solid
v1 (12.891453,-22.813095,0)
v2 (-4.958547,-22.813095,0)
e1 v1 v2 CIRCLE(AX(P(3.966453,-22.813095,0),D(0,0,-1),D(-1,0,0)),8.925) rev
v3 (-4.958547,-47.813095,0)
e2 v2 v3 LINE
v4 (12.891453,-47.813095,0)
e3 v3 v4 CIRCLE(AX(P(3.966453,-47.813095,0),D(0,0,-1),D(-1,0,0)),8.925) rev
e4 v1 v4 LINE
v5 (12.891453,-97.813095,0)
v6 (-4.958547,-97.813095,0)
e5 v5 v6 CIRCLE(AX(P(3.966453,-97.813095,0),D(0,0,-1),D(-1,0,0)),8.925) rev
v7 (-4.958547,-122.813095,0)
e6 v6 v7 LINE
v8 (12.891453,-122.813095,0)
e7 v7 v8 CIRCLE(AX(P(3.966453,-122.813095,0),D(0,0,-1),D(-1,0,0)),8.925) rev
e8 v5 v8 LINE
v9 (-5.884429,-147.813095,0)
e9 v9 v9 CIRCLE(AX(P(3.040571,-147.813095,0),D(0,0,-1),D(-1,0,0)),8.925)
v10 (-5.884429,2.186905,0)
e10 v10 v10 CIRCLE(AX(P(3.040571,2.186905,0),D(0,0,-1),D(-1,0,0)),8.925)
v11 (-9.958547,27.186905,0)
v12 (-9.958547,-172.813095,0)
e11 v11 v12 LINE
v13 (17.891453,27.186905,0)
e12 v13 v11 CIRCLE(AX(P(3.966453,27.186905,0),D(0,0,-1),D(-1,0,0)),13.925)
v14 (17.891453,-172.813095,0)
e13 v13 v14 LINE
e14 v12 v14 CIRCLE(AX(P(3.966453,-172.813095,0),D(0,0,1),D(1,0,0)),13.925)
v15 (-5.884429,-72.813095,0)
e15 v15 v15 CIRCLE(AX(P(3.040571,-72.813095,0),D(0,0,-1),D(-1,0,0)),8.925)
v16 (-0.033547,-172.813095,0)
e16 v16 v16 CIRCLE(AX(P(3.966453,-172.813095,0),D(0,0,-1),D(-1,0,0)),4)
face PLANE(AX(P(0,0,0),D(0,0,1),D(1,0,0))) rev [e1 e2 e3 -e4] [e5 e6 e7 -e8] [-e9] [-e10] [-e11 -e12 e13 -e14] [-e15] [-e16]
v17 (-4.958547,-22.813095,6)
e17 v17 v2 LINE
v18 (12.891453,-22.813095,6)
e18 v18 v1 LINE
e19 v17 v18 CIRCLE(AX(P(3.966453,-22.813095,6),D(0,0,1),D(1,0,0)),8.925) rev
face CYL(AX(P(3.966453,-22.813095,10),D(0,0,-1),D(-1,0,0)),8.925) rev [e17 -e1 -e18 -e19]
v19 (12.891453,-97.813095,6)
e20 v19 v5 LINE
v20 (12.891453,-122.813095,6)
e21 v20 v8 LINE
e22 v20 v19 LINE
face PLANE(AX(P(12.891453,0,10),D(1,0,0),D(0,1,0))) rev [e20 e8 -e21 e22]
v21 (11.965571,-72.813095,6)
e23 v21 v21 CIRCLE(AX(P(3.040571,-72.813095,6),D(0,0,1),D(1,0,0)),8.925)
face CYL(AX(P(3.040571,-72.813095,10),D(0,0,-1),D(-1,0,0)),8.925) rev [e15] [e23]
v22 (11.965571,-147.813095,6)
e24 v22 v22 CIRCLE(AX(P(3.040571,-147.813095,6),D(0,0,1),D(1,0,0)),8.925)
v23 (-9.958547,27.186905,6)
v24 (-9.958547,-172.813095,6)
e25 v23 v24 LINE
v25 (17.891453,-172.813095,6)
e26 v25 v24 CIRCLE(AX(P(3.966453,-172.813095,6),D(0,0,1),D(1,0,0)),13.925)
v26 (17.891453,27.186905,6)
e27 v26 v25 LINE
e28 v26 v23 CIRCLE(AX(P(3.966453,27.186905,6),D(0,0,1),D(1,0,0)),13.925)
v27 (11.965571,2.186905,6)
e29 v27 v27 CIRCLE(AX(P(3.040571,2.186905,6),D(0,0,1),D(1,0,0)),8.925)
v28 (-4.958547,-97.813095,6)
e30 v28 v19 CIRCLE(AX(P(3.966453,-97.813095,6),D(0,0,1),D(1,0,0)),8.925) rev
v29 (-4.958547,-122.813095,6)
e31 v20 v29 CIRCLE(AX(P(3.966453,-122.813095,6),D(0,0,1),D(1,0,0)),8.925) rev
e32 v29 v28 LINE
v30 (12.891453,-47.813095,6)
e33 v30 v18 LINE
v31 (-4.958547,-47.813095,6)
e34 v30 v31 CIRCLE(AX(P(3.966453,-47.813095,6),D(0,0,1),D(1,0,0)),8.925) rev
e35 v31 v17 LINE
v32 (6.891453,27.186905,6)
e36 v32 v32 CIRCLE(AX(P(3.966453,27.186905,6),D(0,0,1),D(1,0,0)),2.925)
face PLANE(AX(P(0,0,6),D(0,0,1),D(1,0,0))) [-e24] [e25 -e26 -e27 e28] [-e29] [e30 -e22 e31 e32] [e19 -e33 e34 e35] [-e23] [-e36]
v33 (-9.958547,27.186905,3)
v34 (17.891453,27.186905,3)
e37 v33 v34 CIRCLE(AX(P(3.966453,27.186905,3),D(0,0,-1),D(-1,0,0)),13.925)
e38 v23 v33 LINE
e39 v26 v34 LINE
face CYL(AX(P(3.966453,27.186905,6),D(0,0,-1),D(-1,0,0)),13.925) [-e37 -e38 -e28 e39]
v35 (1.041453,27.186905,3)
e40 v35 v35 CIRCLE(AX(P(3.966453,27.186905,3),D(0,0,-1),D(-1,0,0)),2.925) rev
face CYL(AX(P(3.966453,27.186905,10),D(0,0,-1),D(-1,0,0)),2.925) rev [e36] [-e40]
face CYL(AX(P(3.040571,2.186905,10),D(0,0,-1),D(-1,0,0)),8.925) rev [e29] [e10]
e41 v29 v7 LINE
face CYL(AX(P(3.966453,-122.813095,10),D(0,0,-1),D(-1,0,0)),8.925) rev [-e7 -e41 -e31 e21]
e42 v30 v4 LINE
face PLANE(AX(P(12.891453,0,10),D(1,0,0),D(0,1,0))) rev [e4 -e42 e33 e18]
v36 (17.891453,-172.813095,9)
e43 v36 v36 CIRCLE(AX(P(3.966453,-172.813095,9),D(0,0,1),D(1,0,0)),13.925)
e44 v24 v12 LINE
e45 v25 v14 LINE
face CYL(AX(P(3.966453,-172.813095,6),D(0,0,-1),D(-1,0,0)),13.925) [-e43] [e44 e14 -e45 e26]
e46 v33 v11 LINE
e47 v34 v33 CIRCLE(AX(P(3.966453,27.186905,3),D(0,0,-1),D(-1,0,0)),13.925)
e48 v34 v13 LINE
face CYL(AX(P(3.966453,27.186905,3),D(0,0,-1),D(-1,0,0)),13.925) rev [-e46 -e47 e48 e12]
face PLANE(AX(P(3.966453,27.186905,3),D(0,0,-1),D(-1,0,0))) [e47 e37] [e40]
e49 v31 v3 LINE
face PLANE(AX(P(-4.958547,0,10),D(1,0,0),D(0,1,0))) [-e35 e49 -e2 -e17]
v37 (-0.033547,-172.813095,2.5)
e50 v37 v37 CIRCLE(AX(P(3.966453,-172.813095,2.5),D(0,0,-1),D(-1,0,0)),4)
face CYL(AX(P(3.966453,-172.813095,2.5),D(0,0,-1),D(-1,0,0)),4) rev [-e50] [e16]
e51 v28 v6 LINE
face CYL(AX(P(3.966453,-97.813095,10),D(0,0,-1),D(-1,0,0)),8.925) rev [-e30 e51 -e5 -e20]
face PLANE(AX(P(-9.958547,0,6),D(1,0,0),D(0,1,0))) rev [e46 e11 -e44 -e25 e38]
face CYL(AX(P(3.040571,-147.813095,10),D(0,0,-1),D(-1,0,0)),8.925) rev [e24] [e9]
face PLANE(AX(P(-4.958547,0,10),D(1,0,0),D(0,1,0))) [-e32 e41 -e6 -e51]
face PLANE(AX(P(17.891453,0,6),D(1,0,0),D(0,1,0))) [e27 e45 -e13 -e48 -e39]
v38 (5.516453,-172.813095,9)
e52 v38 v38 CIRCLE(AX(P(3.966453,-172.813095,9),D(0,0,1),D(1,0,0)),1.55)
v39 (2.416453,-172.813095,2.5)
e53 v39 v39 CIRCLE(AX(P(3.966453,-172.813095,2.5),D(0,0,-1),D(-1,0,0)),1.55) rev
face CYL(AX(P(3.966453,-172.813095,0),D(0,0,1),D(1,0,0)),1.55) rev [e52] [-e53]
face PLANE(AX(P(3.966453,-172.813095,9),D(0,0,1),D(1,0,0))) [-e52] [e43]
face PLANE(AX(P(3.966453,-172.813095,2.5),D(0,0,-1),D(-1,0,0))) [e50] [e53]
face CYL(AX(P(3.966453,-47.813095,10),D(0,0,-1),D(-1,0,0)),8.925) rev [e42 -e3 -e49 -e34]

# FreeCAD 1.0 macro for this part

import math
import FreeCAD as App
import Part
import Sketcher
from FreeCAD import Vector

doc = App.newDocument("Part")
body = doc.addObject("PartDesign::Body", "Body")

# Sketch on XY plane
sketch1 = body.newObject("Sketcher::SketchObject", "Sketch")
sketch1.AttachmentSupport = (doc.getObject("XY_Plane"), [""])
sketch1.MapMode = "FlatFace"
sketch1.addGeometry(Part.LineSegment(Vector(-10, 27, 0), Vector(-10, -173, 0)), False)
sketch1.addGeometry(Part.ArcOfCircle(Part.Circle(Vector(4, -173, 0), Vector(0, 0, 1), 14), math.radians(180), math.radians(360)), False)
sketch1.addGeometry(Part.LineSegment(Vector(18, -173, 0), Vector(18, 27, 0)), False)
sketch1.addGeometry(Part.ArcOfCircle(Part.Circle(Vector(4, 27, 0), Vector(0, 0, 1), 14), math.radians(0), math.radians(180)), False)
sketch1.addConstraint(Sketcher.Constraint("Tangent", 0, 2, 1, 1))
sketch1.addConstraint(Sketcher.Constraint("Tangent", 1, 2, 2, 1))
sketch1.addConstraint(Sketcher.Constraint("Tangent", 2, 2, 3, 1))
sketch1.addConstraint(Sketcher.Constraint("Tangent", 3, 2, 0, 1))
sketch1.addConstraint(Sketcher.Constraint("Vertical", 0))
sketch1.addConstraint(Sketcher.Constraint("Vertical", 2))
sketch1.addConstraint(Sketcher.Constraint("DistanceY", 0, 2, 0, 1, 200.0))
sketch1.addConstraint(Sketcher.Constraint("Radius", 1, 13.925))
sketch1.addConstraint(Sketcher.Constraint("DistanceX", -1, 1, 1, 3, 3.966453))
sketch1.addConstraint(Sketcher.Constraint("DistanceY", 1, 3, -1, 1, 172.813095))
pad1 = body.newObject("PartDesign::Pad", "Pad")
pad1.Profile = sketch1
pad1.Length = 6

# Sketch on XY plane
sketch2 = body.newObject("Sketcher::SketchObject", "Sketch001")
sketch2.AttachmentSupport = (doc.getObject("XY_Plane"), [""])
sketch2.MapMode = "FlatFace"
sketch2.AttachmentOffset = App.Placement(Vector(0, 0, 3), App.Rotation())
sketch2.addGeometry(Part.Circle(Vector(4, -173, 0), Vector(0, 0, 1), 14), False)
sketch2.addConstraint(Sketcher.Constraint("Diameter", 0, 27.85))
sketch2.addConstraint(Sketcher.Constraint("DistanceX", -1, 1, 0, 3, 3.966453))
sketch2.addConstraint(Sketcher.Constraint("DistanceY", 0, 3, -1, 1, 172.813095))
pocket1 = body.newObject("PartDesign::Pocket", "Pocket")
pocket1.Profile = sketch2
pocket1.Length = 3
pocket1.Reversed = True

# Sketch on XY plane
sketch3 = body.newObject("Sketcher::SketchObject", "Sketch002")
sketch3.AttachmentSupport = (doc.getObject("XY_Plane"), [""])
sketch3.MapMode = "FlatFace"
sketch3.AttachmentOffset = App.Placement(Vector(0, 0, 3), App.Rotation())
sketch3.addGeometry(Part.Circle(Vector(4, -172.8, 0), Vector(0, 0, 1), 1.6), False)
sketch3.addConstraint(Sketcher.Constraint("Diameter", 0, 3.1))
sketch3.addConstraint(Sketcher.Constraint("DistanceX", -1, 1, 0, 3, 3.966453))
sketch3.addConstraint(Sketcher.Constraint("DistanceY", 0, 3, -1, 1, 172.813095))
pocket2 = body.newObject("PartDesign::Pocket", "Pocket001")
pocket2.Profile = sketch3
pocket2.Length = 3

# Sketch on XY plane
sketch4 = body.newObject("Sketcher::SketchObject", "Sketch003")
sketch4.AttachmentSupport = (doc.getObject("XY_Plane"), [""])
sketch4.MapMode = "FlatFace"
sketch4.addGeometry(Part.Circle(Vector(3, 2, 0), Vector(0, 0, 1), 9), False)
sketch4.addGeometry(Part.ArcOfCircle(Part.Circle(Vector(4, -23, 0), Vector(0, 0, 1), 9), math.radians(0), math.radians(180)), False)
sketch4.addGeometry(Part.LineSegment(Vector(13, -23, 0), Vector(13, -48, 0)), False)
sketch4.addGeometry(Part.ArcOfCircle(Part.Circle(Vector(4, -48, 0), Vector(0, 0, 1), 9), math.radians(180), math.radians(360)), False)
sketch4.addGeometry(Part.LineSegment(Vector(-5, -48, 0), Vector(-5, -23, 0)), False)
sketch4.addGeometry(Part.Circle(Vector(3, -73, 0), Vector(0, 0, 1), 9), False)
sketch4.addGeometry(Part.LineSegment(Vector(13, -98, 0), Vector(13, -123, 0)), False)
sketch4.addGeometry(Part.ArcOfCircle(Part.Circle(Vector(4, -123, 0), Vector(0, 0, 1), 9), math.radians(180), math.radians(360)), False)
sketch4.addGeometry(Part.LineSegment(Vector(-5, -123, 0), Vector(-5, -98, 0)), False)
sketch4.addGeometry(Part.ArcOfCircle(Part.Circle(Vector(4, -98, 0), Vector(0, 0, 1), 9), math.radians(0), math.radians(180)), False)
sketch4.addGeometry(Part.Circle(Vector(3, -148, 0), Vector(0, 0, 1), 9), False)
sketch4.addConstraint(Sketcher.Constraint("Tangent", 1, 1, 2, 1))
sketch4.addConstraint(Sketcher.Constraint("Tangent", 2, 2, 3, 2))
sketch4.addConstraint(Sketcher.Constraint("Tangent", 3, 1, 4, 1))
sketch4.addConstraint(Sketcher.Constraint("Tangent", 4, 2, 1, 2))
sketch4.addConstraint(Sketcher.Constraint("Tangent", 6, 2, 7, 2))
sketch4.addConstraint(Sketcher.Constraint("Tangent", 7, 1, 8, 1))
sketch4.addConstraint(Sketcher.Constraint("Tangent", 8, 2, 9, 2))
sketch4.addConstraint(Sketcher.Constraint("Tangent", 9, 1, 6, 1))
sketch4.addConstraint(Sketcher.Constraint("Vertical", 2))
sketch4.addConstraint(Sketcher.Constraint("Vertical", 4))
sketch4.addConstraint(Sketcher.Constraint("Vertical", 6))
sketch4.addConstraint(Sketcher.Constraint("Vertical", 8))
sketch4.addConstraint(Sketcher.Constraint("Equal", 0, 1))
sketch4.addConstraint(Sketcher.Constraint("Equal", 3, 5))
sketch4.addConstraint(Sketcher.Constraint("Equal", 5, 7))
sketch4.addConstraint(Sketcher.Constraint("Equal", 9, 10))
sketch4.addConstraint(Sketcher.Constraint("Vertical", 0, 3, 5, 3))
sketch4.addConstraint(Sketcher.Constraint("Vertical", 3, 3, 7, 3))
sketch4.addConstraint(Sketcher.Constraint("Vertical", 5, 3, 10, 3))
sketch4.addConstraint(Sketcher.Constraint("Equal", 4, 6))
sketch4.addConstraint(Sketcher.Constraint("Diameter", 0, 17.85))
sketch4.addConstraint(Sketcher.Constraint("DistanceY", 2, 2, 2, 1, 25.0))
sketch4.addConstraint(Sketcher.Constraint("DistanceY", 1, 3, 0, 3, 25.0))
sketch4.addConstraint(Sketcher.Constraint("DistanceY", 5, 3, 3, 3, 25.0))
sketch4.addConstraint(Sketcher.Constraint("DistanceY", 7, 3, 5, 3, 50.0))
sketch4.addConstraint(Sketcher.Constraint("DistanceY", 10, 3, 7, 3, 25.0))
sketch4.addConstraint(Sketcher.Constraint("DistanceX", -1, 1, 0, 3, 3.040571))
sketch4.addConstraint(Sketcher.Constraint("DistanceX", 0, 3, 1, 3, 0.925881))
sketch4.addConstraint(Sketcher.Constraint("DistanceY", -1, 1, 0, 3, 2.186905))
pocket3 = body.newObject("PartDesign::Pocket", "Pocket002")
pocket3.Profile = sketch4
pocket3.Length = 10
pocket3.Reversed = True

# Sketch on XY plane
sketch5 = body.newObject("Sketcher::SketchObject", "Sketch004")
sketch5.AttachmentSupport = (doc.getObject("XY_Plane"), [""])
sketch5.MapMode = "FlatFace"
sketch5.addGeometry(Part.Circle(Vector(4, 27.2, 0), Vector(0, 0, 1), 2.9), False)
sketch5.addConstraint(Sketcher.Constraint("Diameter", 0, 5.85))
sketch5.addConstraint(Sketcher.Constraint("DistanceX", -1, 1, 0, 3, 3.966453))
sketch5.addConstraint(Sketcher.Constraint("DistanceY", -1, 1, 0, 3, 27.186905))
pocket4 = body.newObject("PartDesign::Pocket", "Pocket003")
pocket4.Profile = sketch5
pocket4.Length = 10
pocket4.Reversed = True

# Sketch on XY plane
sketch6 = body.newObject("Sketcher::SketchObject", "Sketch005")
sketch6.AttachmentSupport = (doc.getObject("XY_Plane"), [""])
sketch6.MapMode = "FlatFace"
sketch6.addGeometry(Part.Circle(Vector(4, 27, 0), Vector(0, 0, 1), 14), False)
sketch6.addConstraint(Sketcher.Constraint("Diameter", 0, 27.85))
sketch6.addConstraint(Sketcher.Constraint("DistanceX", -1, 1, 0, 3, 3.966453))
sketch6.addConstraint(Sketcher.Constraint("DistanceY", -1, 1, 0, 3, 27.186905))
pocket5 = body.newObject("PartDesign::Pocket", "Pocket004")
pocket5.Profile = sketch6
pocket5.Length = 3
pocket5.Reversed = True

# Sketch on XY plane
sketch7 = body.newObject("Sketcher::SketchObject", "Sketch006")
sketch7.AttachmentSupport = (doc.getObject("XY_Plane"), [""])
sketch7.MapMode = "FlatFace"
sketch7.AttachmentOffset = App.Placement(Vector(0, 0, 3), App.Rotation())
sketch7.addGeometry(Part.Circle(Vector(4, -172.8, 0), Vector(0, 0, 1), 13.9), False)
sketch7.addGeometry(Part.Circle(Vector(4, -172.8, 0), Vector(0, 0, 1), 1.6), False)
sketch7.addConstraint(Sketcher.Constraint("Coincident", 1, 3, 0, 3))
sketch7.addConstraint(Sketcher.Constraint("Diameter", 1, 3.1))
sketch7.addConstraint(Sketcher.Constraint("Diameter", 0, 27.85))
sketch7.addConstraint(Sketcher.Constraint("DistanceX", -1, 1, 0, 3, 3.966453))
sketch7.addConstraint(Sketcher.Constraint("DistanceY", 0, 3, -1, 1, 172.813095))
pad2 = body.newObject("PartDesign::Pad", "Pad001")
pad2.Profile = sketch7
pad2.Length = 6

# Sketch on XY plane
sketch8 = body.newObject("Sketcher::SketchObject", "Sketch007")
sketch8.AttachmentSupport = (doc.getObject("XY_Plane"), [""])
sketch8.MapMode = "FlatFace"
sketch8.addGeometry(Part.Circle(Vector(4, -172.8, 0), Vector(0, 0, 1), 4), False)
sketch8.addConstraint(Sketcher.Constraint("Diameter", 0, 8.0))
sketch8.addConstraint(Sketcher.Constraint("DistanceX", -1, 1, 0, 3, 3.966453))
sketch8.addConstraint(Sketcher.Constraint("DistanceY", 0, 3, -1, 1, 172.813095))
pocket6 = body.newObject("PartDesign::Pocket", "Pocket005")
pocket6.Profile = sketch8
pocket6.Length = 2.5
pocket6.Reversed = True

doc.recompute()
